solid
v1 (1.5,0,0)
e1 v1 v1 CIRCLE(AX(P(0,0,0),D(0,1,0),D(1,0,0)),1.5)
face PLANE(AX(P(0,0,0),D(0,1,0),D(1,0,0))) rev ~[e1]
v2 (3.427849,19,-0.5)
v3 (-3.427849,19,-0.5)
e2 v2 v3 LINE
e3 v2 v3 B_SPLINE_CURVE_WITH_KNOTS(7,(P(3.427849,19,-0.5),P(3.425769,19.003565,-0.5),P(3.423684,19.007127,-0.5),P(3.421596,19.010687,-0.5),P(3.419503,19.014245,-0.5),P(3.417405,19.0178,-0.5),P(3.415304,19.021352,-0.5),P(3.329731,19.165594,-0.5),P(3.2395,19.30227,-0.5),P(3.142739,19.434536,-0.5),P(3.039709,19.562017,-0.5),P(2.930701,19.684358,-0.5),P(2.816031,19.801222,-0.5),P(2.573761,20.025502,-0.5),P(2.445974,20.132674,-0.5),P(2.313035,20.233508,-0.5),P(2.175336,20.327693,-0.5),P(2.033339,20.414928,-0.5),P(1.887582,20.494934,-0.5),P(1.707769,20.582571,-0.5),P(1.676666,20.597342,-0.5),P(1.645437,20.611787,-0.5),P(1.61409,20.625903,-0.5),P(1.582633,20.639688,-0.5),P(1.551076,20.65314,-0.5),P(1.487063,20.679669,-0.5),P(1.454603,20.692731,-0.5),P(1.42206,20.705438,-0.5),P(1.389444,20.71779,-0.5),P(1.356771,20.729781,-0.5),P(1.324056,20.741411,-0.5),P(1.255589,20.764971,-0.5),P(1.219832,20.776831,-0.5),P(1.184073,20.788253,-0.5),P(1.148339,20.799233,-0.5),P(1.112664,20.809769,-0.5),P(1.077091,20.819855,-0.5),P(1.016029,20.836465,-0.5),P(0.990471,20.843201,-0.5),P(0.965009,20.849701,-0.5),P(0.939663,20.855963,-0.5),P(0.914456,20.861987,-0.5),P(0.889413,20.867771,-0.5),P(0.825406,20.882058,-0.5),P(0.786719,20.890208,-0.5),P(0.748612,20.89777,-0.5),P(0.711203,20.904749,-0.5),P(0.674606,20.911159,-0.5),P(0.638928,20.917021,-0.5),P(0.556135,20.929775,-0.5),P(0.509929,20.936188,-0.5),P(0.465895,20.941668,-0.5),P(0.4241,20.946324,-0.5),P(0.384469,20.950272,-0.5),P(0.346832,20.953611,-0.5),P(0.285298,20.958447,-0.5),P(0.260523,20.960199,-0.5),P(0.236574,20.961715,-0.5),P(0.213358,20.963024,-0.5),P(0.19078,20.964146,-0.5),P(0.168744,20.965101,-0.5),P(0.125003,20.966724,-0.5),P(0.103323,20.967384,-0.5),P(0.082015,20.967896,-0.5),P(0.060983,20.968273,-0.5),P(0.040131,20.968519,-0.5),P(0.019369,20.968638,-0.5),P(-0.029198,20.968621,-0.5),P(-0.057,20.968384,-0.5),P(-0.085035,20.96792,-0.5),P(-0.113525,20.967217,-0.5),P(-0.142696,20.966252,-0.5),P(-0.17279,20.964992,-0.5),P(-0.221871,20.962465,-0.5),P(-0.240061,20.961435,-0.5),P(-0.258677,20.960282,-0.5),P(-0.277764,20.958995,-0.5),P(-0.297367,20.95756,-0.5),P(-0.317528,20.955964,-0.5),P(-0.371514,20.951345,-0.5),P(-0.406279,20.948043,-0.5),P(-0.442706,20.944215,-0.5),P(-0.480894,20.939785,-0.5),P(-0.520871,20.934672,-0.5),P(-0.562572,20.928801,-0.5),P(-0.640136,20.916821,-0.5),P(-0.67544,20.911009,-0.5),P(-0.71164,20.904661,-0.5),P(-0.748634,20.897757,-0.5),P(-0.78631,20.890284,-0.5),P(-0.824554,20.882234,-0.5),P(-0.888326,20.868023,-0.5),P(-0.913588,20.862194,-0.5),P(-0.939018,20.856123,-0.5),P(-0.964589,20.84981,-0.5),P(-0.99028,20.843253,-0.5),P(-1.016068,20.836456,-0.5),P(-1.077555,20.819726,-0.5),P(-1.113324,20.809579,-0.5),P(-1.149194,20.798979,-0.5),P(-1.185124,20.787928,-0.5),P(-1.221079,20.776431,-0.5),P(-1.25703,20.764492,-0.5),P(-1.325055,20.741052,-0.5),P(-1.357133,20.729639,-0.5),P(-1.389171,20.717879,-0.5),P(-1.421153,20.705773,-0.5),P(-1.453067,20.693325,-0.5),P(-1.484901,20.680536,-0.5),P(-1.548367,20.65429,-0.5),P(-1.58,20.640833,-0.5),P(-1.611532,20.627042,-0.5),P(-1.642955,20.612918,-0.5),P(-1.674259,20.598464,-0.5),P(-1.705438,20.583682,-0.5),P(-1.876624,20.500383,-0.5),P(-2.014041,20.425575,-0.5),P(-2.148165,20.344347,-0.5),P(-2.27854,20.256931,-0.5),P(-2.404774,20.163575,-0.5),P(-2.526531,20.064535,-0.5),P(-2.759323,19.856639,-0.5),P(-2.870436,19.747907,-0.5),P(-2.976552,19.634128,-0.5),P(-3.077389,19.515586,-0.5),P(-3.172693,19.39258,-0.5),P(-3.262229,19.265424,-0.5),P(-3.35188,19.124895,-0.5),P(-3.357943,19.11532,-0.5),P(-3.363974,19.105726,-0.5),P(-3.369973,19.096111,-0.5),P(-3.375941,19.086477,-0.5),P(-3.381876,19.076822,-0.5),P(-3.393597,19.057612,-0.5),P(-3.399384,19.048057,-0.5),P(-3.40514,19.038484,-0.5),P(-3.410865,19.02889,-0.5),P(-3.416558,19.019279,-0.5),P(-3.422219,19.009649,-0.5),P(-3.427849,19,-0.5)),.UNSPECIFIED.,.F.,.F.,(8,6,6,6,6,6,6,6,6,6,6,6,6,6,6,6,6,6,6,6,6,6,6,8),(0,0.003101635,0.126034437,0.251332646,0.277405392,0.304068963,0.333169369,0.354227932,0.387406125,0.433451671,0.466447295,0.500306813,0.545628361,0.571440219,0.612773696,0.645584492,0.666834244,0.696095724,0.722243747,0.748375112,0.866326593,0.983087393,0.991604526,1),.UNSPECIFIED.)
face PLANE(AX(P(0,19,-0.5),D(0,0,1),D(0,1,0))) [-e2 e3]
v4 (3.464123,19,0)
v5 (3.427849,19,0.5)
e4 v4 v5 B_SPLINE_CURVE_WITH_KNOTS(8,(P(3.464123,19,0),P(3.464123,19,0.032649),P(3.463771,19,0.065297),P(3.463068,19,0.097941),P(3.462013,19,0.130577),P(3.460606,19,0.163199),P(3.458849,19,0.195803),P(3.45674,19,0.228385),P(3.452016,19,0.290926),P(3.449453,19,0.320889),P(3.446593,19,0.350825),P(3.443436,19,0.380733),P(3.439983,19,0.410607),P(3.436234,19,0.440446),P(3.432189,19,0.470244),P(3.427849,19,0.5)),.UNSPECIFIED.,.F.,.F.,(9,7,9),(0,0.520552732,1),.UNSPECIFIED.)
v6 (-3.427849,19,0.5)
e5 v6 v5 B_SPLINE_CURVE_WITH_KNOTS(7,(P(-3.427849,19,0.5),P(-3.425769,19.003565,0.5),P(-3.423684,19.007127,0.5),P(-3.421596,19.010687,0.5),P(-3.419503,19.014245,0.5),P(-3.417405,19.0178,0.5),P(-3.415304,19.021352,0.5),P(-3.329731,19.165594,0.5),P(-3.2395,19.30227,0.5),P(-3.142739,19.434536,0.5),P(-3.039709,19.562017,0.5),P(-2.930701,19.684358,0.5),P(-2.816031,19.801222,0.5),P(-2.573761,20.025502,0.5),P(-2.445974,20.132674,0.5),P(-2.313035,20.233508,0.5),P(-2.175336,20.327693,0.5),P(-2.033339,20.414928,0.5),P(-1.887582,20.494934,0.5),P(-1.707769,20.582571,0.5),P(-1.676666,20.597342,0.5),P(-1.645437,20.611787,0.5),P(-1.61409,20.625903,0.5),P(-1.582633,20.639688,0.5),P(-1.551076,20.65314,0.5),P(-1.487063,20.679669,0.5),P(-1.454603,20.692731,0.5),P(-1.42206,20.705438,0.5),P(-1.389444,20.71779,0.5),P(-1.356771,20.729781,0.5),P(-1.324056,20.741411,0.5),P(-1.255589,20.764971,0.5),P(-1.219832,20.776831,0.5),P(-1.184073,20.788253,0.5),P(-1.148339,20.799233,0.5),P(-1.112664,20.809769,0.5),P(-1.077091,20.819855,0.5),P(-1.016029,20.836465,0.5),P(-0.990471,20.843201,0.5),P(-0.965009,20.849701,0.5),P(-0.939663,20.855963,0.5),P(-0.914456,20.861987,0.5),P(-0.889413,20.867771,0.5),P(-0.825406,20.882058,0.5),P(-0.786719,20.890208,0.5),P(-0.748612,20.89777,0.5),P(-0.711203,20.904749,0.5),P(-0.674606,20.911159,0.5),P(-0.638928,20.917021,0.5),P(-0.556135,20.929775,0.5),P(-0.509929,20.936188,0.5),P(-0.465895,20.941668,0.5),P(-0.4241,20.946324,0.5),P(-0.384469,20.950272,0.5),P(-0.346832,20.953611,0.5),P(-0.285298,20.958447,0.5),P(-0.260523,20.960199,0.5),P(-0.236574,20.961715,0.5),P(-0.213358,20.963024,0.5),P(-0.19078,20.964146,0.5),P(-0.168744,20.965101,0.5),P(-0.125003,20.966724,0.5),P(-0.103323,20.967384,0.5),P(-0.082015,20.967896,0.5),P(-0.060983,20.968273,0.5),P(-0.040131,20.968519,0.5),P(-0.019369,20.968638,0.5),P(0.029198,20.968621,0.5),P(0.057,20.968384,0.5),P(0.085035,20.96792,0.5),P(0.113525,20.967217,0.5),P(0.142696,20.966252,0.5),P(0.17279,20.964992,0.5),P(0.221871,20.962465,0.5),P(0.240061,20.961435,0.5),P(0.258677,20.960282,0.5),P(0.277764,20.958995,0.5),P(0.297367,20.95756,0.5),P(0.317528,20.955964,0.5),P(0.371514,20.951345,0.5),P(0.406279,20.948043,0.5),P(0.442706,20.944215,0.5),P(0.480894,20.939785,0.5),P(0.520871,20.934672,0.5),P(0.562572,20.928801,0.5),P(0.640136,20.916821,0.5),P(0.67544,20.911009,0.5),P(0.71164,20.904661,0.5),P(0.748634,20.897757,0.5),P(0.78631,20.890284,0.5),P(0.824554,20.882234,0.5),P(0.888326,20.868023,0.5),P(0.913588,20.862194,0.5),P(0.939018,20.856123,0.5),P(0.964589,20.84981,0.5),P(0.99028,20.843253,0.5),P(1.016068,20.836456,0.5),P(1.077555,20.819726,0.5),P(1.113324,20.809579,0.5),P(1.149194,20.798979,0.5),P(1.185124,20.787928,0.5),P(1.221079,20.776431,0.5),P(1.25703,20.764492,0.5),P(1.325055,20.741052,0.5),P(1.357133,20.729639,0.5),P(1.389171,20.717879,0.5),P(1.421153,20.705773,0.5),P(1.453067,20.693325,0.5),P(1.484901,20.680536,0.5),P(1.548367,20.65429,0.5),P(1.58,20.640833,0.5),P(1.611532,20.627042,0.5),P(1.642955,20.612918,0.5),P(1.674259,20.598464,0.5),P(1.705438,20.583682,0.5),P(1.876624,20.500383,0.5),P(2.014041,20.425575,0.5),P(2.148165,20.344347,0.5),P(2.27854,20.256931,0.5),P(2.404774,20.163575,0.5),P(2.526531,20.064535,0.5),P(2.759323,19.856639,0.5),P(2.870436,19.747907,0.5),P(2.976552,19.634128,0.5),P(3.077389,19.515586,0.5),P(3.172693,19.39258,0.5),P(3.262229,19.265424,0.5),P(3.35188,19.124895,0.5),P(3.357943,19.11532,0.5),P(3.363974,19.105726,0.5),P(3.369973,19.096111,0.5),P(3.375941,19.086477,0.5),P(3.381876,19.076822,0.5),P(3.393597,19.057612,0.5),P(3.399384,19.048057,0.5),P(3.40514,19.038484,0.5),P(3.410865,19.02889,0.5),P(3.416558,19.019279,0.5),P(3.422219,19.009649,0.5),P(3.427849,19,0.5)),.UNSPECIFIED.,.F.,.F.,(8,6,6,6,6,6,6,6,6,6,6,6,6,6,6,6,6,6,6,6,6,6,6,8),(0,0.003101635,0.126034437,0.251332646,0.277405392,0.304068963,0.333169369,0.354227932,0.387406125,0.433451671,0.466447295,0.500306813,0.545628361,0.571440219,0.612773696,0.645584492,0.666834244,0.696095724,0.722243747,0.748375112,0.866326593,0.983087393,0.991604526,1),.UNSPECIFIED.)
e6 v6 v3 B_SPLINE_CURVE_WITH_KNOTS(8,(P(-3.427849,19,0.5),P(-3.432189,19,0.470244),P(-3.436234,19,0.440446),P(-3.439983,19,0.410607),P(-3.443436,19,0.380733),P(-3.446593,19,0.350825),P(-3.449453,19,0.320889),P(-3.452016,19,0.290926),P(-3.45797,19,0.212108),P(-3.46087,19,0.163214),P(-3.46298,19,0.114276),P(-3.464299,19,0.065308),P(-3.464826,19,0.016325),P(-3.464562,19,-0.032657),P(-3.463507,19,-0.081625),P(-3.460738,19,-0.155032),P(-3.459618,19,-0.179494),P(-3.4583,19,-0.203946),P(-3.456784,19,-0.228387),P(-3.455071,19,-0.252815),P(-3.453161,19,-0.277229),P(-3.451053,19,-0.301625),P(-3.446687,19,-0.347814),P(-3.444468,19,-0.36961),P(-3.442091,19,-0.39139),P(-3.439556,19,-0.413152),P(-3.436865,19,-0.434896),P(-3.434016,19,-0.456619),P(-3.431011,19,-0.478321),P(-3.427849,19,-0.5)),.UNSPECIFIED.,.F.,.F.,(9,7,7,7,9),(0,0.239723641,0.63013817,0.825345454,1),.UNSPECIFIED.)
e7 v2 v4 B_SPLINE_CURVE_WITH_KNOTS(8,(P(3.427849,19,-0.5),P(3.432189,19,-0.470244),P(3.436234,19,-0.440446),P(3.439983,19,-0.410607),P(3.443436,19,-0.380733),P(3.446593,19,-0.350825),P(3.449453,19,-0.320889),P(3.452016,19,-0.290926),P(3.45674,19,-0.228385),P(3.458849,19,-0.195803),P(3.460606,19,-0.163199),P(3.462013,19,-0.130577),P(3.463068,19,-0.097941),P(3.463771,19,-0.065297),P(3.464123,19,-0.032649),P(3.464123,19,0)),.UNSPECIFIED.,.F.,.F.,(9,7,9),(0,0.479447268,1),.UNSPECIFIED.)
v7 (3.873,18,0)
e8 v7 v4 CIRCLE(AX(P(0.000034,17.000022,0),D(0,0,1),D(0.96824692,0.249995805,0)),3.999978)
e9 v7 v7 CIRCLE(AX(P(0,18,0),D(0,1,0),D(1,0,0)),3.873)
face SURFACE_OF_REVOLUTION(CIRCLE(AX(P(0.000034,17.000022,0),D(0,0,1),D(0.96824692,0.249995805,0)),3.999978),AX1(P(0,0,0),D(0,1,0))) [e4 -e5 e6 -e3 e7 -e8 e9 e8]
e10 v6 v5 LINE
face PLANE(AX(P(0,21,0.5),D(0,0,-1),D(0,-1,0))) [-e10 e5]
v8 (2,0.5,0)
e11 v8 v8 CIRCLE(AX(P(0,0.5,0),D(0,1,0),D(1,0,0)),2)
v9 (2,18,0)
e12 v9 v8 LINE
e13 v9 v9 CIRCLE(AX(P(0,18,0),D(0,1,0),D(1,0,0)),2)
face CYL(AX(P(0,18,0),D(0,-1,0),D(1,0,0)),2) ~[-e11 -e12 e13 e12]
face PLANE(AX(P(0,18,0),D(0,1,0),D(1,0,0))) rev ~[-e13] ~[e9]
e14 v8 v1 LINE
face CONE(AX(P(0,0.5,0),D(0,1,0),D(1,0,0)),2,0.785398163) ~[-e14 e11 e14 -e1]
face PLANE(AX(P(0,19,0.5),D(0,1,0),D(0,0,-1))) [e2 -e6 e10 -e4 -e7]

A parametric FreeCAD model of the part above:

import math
import FreeCAD as App
import Part
import Sketcher
Q = App.Units.Quantity


def edges_at(feature, points):
    """Names of the edges that pass closest to the given points."""
    edges = feature.Shape.Edges
    near = lambda p: min(range(len(edges)), key=lambda i: edges[i].distToShape(Part.Vertex(*p))[0])
    return sorted({f"Edge{near(p) + 1}" for p in points})


def add_polygon(sketch, points):
    """Adds a closed chain of lines whose ends are joined by coincident constraints."""
    first, n = sketch.GeometryCount, len(points)
    for a, b in zip(points, points[1:] + points[:1]):
        sketch.addGeometry(Part.LineSegment(App.Vector(*a, 0), App.Vector(*b, 0)), False)
    for i in range(n):
        sketch.addConstraint(Sketcher.Constraint("Coincident", first + i, 2, first + (i + 1) % n, 1))

doc = App.newDocument("Part")
params = doc.addObject("Spreadsheet::Sheet", "Params")
for row, (alias, value) in enumerate([
    ("sketch1_radius", "4 mm"),
    ("sketch1_height", "18 mm"),
    ("sketch1_width", "2 mm"),
    ("revolution_angle", "360 deg"),
    ("sketch2_width", "2 mm"),
    ("sketch2_height", "1 mm"),
    ("chamfer_size", "0.5 mm"),
], start=1):
    params.set(f"A{row}", alias)
    params.set(f"B{row}", "=" + value)
    params.setAlias(f"B{row}", alias)

body = doc.addObject("PartDesign::Body", "Body")

# Sketch on XY plane
sketch1 = doc.addObject("Sketcher::SketchObject", "Sketch")
body.addObject(sketch1)
sketch1.AttachmentSupport = (doc.XY_Plane, [""])
sketch1.MapMode = "FlatFace"
sketch1.addGeometry([
    Part.LineSegment(App.Vector(0, 21, 0), App.Vector(0, 0, 0)),  # 0
    Part.LineSegment(App.Vector(0, 0, 0), App.Vector(2, 0, 0)),  # 1
    Part.LineSegment(App.Vector(2, 0, 0), App.Vector(2, 18, 0)),  # 2
    Part.LineSegment(App.Vector(2, 18, 0), App.Vector(3.9, 18, 0)),  # 3
    Part.ArcOfCircle(Part.Circle(App.Vector(0, 17, 0), App.Vector(0, 0, 1), 4), math.radians(14), math.radians(90)),  # 4
], False)
sketch1.addConstraint([
    Sketcher.Constraint("Coincident", 0, 2, 1, 1),
    Sketcher.Constraint("Coincident", 1, 2, 2, 1),
    Sketcher.Constraint("Coincident", 2, 2, 3, 1),
    Sketcher.Constraint("Coincident", 3, 2, 4, 1),
    Sketcher.Constraint("Coincident", 4, 2, 0, 1),
    Sketcher.Constraint("Vertical", 0),
    Sketcher.Constraint("Horizontal", 1),
    Sketcher.Constraint("Vertical", 2),
    Sketcher.Constraint("Horizontal", 3),
    Sketcher.Constraint("Coincident", 0, 2, -1, 1),
    Sketcher.Constraint("PointOnObject", 4, 3, -2),
    Sketcher.Constraint("Radius", 4, Q("4 mm")),
    Sketcher.Constraint("DistanceY", 2, 1, 2, 2, Q("18 mm")),
    Sketcher.Constraint("DistanceY", 2, 2, 4, 2, Q("3 mm")),
    Sketcher.Constraint("DistanceX", 1, 1, 1, 2, Q("2 mm")),
])
sketch1.setExpression("Constraints[11]", "Params.sketch1_radius")
sketch1.setExpression("Constraints[12]", "Params.sketch1_height")
sketch1.setExpression("Constraints[14]", "Params.sketch1_width")
revolution = doc.addObject("PartDesign::Revolution", "Revolution")
body.addObject(revolution)
revolution.Profile = sketch1
revolution.ReferenceAxis = (sketch1, ["V_Axis"])
revolution.setExpression("Angle", "Params.revolution_angle")

# Sketch on YZ plane
sketch2 = doc.addObject("Sketcher::SketchObject", "Sketch001")
body.addObject(sketch2)
sketch2.AttachmentSupport = (doc.YZ_Plane, [""])
sketch2.MapMode = "FlatFace"
add_polygon(sketch2, [(21, -0.5), (21, 0.5), (19, 0.5), (19, -0.5)])  # lines 0-3
sketch2.addConstraint([
    Sketcher.Constraint("Vertical", 0),
    Sketcher.Constraint("Horizontal", 1),
    Sketcher.Constraint("Vertical", 2),
    Sketcher.Constraint("Horizontal", 3),
    Sketcher.Constraint("DistanceX", 1, 2, 1, 1, Q("2 mm")),
    Sketcher.Constraint("DistanceY", 0, 1, 0, 2, Q("1 mm")),
    Sketcher.Constraint("DistanceX", -1, 1, 0, 2, Q("21 mm")),
    Sketcher.Constraint("DistanceY", -1, 1, 0, 2, Q("0.5 mm")),
])
sketch2.setExpression("Constraints[8]", "Params.sketch2_width")
sketch2.setExpression("Constraints[9]", "Params.sketch2_height")
pocket1 = doc.addObject("PartDesign::Pocket", "Pocket")
body.addObject(pocket1)
pocket1.Profile = sketch2
pocket1.Type = "ThroughAll"
pocket1.Midplane = True
doc.recompute()

chamfer = doc.addObject("PartDesign::Chamfer", "Chamfer")
body.addObject(chamfer)
chamfer.Base = (pocket1, edges_at(pocket1, [(-2, 0, 0)]))
chamfer.setExpression("Size", "Params.chamfer_size")

doc.recompute()
